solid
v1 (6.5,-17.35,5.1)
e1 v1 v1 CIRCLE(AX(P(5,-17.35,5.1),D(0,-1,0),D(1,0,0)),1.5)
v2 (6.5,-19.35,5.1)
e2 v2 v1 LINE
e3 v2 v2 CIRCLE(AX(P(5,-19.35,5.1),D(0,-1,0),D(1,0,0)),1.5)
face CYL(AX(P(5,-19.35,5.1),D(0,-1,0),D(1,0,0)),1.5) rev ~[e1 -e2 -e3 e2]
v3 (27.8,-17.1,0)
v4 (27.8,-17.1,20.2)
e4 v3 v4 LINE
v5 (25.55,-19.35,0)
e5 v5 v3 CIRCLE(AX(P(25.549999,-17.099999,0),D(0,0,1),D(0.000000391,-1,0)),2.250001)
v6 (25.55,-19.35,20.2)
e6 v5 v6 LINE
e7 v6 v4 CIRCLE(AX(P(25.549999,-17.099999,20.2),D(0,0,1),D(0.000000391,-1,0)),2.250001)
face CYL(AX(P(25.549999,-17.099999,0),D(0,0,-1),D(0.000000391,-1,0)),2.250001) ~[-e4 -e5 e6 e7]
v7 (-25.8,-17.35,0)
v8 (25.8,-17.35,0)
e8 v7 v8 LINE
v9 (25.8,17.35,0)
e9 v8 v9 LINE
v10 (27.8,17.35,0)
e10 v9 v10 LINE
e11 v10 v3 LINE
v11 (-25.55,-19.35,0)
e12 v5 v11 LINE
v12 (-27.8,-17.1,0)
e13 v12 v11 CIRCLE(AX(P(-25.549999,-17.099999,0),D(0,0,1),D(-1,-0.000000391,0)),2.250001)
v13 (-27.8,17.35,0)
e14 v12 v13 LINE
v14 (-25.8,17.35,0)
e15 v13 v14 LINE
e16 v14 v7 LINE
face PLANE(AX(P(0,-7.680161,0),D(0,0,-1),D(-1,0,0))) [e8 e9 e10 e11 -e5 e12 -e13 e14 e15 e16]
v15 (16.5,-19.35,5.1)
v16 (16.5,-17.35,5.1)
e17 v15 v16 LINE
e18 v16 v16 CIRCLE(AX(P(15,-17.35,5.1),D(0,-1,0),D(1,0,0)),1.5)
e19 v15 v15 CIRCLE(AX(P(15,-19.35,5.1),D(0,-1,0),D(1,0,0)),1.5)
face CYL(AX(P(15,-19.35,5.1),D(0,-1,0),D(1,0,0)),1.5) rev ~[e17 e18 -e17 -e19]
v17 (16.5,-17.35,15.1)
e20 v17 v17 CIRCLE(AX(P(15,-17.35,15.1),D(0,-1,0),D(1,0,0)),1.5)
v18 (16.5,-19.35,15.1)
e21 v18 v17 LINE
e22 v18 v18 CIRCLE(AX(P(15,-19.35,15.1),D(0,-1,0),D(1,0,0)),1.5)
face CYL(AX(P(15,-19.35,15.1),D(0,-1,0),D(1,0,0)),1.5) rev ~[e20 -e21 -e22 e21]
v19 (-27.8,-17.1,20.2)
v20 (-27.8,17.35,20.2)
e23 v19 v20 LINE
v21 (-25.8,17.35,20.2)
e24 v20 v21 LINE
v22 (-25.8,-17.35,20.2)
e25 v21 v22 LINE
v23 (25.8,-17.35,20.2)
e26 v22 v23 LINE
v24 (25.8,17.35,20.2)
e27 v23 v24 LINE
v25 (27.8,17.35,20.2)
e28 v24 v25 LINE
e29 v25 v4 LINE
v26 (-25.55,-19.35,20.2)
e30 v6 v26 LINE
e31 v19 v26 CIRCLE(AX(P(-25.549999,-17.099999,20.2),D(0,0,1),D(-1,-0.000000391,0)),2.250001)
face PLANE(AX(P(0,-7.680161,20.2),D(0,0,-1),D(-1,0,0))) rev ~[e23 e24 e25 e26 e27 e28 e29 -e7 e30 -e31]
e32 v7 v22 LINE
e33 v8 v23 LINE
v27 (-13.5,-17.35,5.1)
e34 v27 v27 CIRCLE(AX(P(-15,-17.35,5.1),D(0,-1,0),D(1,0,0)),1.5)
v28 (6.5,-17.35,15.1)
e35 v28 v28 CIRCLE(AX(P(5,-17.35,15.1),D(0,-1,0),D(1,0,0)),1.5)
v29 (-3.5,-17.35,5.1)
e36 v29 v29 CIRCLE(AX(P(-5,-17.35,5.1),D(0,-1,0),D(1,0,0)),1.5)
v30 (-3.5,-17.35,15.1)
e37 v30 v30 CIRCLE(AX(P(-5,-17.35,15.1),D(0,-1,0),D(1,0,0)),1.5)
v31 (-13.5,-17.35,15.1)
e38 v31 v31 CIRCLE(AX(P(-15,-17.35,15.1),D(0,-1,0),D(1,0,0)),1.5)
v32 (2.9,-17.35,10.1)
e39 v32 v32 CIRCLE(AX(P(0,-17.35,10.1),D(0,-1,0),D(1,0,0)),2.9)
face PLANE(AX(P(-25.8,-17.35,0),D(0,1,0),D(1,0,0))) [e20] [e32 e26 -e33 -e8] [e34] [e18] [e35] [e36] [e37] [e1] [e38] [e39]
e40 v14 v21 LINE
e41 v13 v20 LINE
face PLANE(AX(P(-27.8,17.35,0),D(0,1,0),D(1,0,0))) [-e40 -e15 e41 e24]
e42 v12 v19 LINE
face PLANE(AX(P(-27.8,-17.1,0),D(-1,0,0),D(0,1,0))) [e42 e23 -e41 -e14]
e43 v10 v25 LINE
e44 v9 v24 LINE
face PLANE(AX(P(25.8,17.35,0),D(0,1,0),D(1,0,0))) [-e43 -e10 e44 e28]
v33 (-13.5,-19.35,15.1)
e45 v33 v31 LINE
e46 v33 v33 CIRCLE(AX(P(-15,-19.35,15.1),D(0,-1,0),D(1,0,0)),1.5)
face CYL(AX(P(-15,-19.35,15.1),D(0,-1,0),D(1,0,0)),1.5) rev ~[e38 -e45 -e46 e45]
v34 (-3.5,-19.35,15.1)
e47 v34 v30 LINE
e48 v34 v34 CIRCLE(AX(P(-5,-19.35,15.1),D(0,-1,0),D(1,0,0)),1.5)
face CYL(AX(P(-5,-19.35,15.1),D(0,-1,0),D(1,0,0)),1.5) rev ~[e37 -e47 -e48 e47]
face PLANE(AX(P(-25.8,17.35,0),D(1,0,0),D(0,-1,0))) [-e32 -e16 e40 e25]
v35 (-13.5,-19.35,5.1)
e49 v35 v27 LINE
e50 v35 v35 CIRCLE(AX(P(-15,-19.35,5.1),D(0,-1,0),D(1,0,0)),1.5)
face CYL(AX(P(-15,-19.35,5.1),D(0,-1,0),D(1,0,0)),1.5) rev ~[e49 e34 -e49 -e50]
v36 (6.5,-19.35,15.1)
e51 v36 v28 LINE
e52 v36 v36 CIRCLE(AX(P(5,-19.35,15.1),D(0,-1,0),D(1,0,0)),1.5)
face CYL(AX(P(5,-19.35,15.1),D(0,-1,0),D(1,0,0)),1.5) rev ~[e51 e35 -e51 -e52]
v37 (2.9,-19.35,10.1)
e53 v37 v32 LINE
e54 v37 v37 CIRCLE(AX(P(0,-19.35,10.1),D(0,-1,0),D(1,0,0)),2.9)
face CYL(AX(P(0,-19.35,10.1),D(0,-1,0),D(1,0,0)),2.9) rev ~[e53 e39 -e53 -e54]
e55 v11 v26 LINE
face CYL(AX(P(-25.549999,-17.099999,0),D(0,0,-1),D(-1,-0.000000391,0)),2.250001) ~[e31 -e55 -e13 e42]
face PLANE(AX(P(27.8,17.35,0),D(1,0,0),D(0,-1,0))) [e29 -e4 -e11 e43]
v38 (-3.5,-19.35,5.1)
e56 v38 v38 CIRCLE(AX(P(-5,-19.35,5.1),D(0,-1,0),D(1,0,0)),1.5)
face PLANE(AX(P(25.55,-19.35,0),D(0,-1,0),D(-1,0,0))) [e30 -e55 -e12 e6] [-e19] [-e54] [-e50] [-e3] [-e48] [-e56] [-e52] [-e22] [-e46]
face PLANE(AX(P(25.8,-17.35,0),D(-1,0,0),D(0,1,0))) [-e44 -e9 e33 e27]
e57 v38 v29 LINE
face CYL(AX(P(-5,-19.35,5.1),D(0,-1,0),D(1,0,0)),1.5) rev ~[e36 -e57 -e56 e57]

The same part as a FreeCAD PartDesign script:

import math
import FreeCAD as App
import Part
import Sketcher

doc = App.newDocument("Part")
params = doc.addObject("Spreadsheet::Sheet", "Params")
for row, (alias, value) in enumerate([
    ("sketch1_width", "2 mm"),
    ("sketch1_radius", "2.250001 mm"),
    ("sketch1_width2", "51.1 mm"),
    ("sketch1_height", "34.7 mm"),
    ("pad1_length", "20.2 mm"),
    ("sketch2_diameter", "3 mm"),
    ("sketch2_diameter2", "5.8 mm"),
    ("pocket1_length", "2 mm"),
], start=1):
    params.set(f"A{row}", alias)
    params.set(f"B{row}", "=" + value)
    params.setAlias(f"B{row}", alias)

body = doc.addObject("PartDesign::Body", "Body")

# Sketch on XY plane
sketch1 = body.newObject("Sketcher::SketchObject", "Sketch")
sketch1.AttachmentSupport = (doc.getObject("XY_Plane"), [""])
sketch1.MapMode = "FlatFace"
sketch1.addGeometry([
    Part.LineSegment(App.Vector(-25.8, 17.35, 0), App.Vector(-27.8, 17.35, 0)),  # 0
    Part.LineSegment(App.Vector(-27.8, 17.35, 0), App.Vector(-27.8, -17.1, 0)),  # 1
    Part.ArcOfCircle(Part.Circle(App.Vector(-25.549999, -17.099999, 0), App.Vector(0, 0, 1), 2.250001), math.radians(-179.999978), math.radians(-90.000022)),  # 2
    Part.LineSegment(App.Vector(-25.55, -19.35, 0), App.Vector(25.55, -19.35, 0)),  # 3
    Part.ArcOfCircle(Part.Circle(App.Vector(25.549999, -17.099999, 0), App.Vector(0, 0, 1), 2.250001), math.radians(-89.999978), math.radians(-0.000022)),  # 4
    Part.LineSegment(App.Vector(27.8, -17.1, 0), App.Vector(27.8, 17.35, 0)),  # 5
    Part.LineSegment(App.Vector(27.8, 17.35, 0), App.Vector(25.8, 17.35, 0)),  # 6
    Part.LineSegment(App.Vector(25.8, 17.35, 0), App.Vector(25.8, -17.35, 0)),  # 7
    Part.LineSegment(App.Vector(25.8, -17.35, 0), App.Vector(-25.8, -17.35, 0)),  # 8
    Part.LineSegment(App.Vector(-25.8, -17.35, 0), App.Vector(-25.8, 17.35, 0)),  # 9
], False)
sketch1.addConstraint([
    Sketcher.Constraint("Coincident", 0, 2, 1, 1),
    Sketcher.Constraint("Tangent", 1, 2, 2, 1),
    Sketcher.Constraint("Tangent", 2, 2, 3, 1),
    Sketcher.Constraint("Tangent", 3, 2, 4, 1),
    Sketcher.Constraint("Tangent", 4, 2, 5, 1),
    Sketcher.Constraint("Coincident", 5, 2, 6, 1),
    Sketcher.Constraint("Coincident", 6, 2, 7, 1),
    Sketcher.Constraint("Coincident", 7, 2, 8, 1),
    Sketcher.Constraint("Coincident", 8, 2, 9, 1),
    Sketcher.Constraint("Coincident", 9, 2, 0, 1),
    Sketcher.Constraint("Horizontal", 0),
    Sketcher.Constraint("Vertical", 1),
    Sketcher.Constraint("Horizontal", 3),
    Sketcher.Constraint("Vertical", 5),
    Sketcher.Constraint("Horizontal", 6),
    Sketcher.Constraint("Vertical", 7),
    Sketcher.Constraint("Horizontal", 8),
    Sketcher.Constraint("Vertical", 9),
    Sketcher.Constraint("Equal", 2, 4),
    Sketcher.Constraint("Symmetric", 6, 2, 8, 2, -1, 1),
    Sketcher.Constraint("Symmetric", 0, 2, 5, 2, -2),
    Sketcher.Constraint("DistanceX", 0, 2, 0, 1, 2.0),
    Sketcher.Constraint("Radius", 2, 2.250001),
    Sketcher.Constraint("DistanceX", 3, 1, 3, 2, 51.1),
    Sketcher.Constraint("DistanceY", 7, 2, 7, 1, 34.7),
    Sketcher.Constraint("DistanceY", 3, 2, 7, 2, 2.0),
])
sketch1.setExpression("Constraints[21]", "Params.sketch1_width")
sketch1.setExpression("Constraints[22]", "Params.sketch1_radius")
sketch1.setExpression("Constraints[23]", "Params.sketch1_width2")
sketch1.setExpression("Constraints[24]", "Params.sketch1_height")
pad1 = body.newObject("PartDesign::Pad", "Pad")
pad1.Profile = sketch1
pad1.setExpression("Length", "Params.pad1_length")

# Sketch on XZ plane
sketch2 = body.newObject("Sketcher::SketchObject", "Sketch001")
sketch2.AttachmentSupport = (doc.getObject("XZ_Plane"), [""])
sketch2.MapMode = "FlatFace"
sketch2.AttachmentOffset = App.Placement(App.Vector(0, 0, 19.35), App.Rotation())
sketch2.addGeometry([
    Part.Circle(App.Vector(0, 10.1, 0), App.Vector(0, 0, 1), 2.9),  # 0
    Part.Circle(App.Vector(5, 15.1, 0), App.Vector(0, 0, 1), 1.5),  # 1
    Part.Circle(App.Vector(-5, 15.1, 0), App.Vector(0, 0, 1), 1.5),  # 2
    Part.Circle(App.Vector(-5, 5.1, 0), App.Vector(0, 0, 1), 1.5),  # 3
    Part.Circle(App.Vector(5, 5.1, 0), App.Vector(0, 0, 1), 1.5),  # 4
    Part.Circle(App.Vector(-15, 15.1, 0), App.Vector(0, 0, 1), 1.5),  # 5
    Part.Circle(App.Vector(-15, 5.1, 0), App.Vector(0, 0, 1), 1.5),  # 6
    Part.Circle(App.Vector(15, 15.1, 0), App.Vector(0, 0, 1), 1.5),  # 7
    Part.Circle(App.Vector(15, 5.1, 0), App.Vector(0, 0, 1), 1.5),  # 8
], False)
sketch2.addConstraint([
    Sketcher.Constraint("Equal", 1, 2),
    Sketcher.Constraint("Equal", 2, 3),
    Sketcher.Constraint("Equal", 3, 4),
    Sketcher.Constraint("Equal", 4, 5),
    Sketcher.Constraint("Equal", 5, 6),
    Sketcher.Constraint("Equal", 6, 7),
    Sketcher.Constraint("Equal", 7, 8),
    Sketcher.Constraint("Symmetric", 1, 3, 2, 3, -2),
    Sketcher.Constraint("Symmetric", 3, 3, 4, 3, -2),
    Sketcher.Constraint("Symmetric", 5, 3, 7, 3, -2),
    Sketcher.Constraint("Symmetric", 6, 3, 8, 3, -2),
    Sketcher.Constraint("PointOnObject", 0, 3, -2),
    Sketcher.Constraint("Horizontal", 2, 3, 5, 3),
    Sketcher.Constraint("Horizontal", 4, 3, 6, 3),
    Sketcher.Constraint("Vertical", 2, 3, 3, 3),
    Sketcher.Constraint("Vertical", 5, 3, 6, 3),
    Sketcher.Constraint("Diameter", 1, 3.0),
    Sketcher.Constraint("Diameter", 0, 5.8),
    Sketcher.Constraint("DistanceX", -1, 1, 1, 3, 5.0),
    Sketcher.Constraint("DistanceX", 5, 3, -1, 1, 15.0),
    Sketcher.Constraint("DistanceY", 0, 3, 1, 3, 5.0),
    Sketcher.Constraint("DistanceY", 3, 3, 0, 3, 5.0),
    Sketcher.Constraint("DistanceY", -1, 1, 0, 3, 10.1),
])
sketch2.setExpression("Constraints[16]", "Params.sketch2_diameter")
sketch2.setExpression("Constraints[17]", "Params.sketch2_diameter2")
pocket1 = body.newObject("PartDesign::Pocket", "Pocket")
pocket1.Profile = sketch2
pocket1.setExpression("Length", "Params.pocket1_length")

doc.recompute()
